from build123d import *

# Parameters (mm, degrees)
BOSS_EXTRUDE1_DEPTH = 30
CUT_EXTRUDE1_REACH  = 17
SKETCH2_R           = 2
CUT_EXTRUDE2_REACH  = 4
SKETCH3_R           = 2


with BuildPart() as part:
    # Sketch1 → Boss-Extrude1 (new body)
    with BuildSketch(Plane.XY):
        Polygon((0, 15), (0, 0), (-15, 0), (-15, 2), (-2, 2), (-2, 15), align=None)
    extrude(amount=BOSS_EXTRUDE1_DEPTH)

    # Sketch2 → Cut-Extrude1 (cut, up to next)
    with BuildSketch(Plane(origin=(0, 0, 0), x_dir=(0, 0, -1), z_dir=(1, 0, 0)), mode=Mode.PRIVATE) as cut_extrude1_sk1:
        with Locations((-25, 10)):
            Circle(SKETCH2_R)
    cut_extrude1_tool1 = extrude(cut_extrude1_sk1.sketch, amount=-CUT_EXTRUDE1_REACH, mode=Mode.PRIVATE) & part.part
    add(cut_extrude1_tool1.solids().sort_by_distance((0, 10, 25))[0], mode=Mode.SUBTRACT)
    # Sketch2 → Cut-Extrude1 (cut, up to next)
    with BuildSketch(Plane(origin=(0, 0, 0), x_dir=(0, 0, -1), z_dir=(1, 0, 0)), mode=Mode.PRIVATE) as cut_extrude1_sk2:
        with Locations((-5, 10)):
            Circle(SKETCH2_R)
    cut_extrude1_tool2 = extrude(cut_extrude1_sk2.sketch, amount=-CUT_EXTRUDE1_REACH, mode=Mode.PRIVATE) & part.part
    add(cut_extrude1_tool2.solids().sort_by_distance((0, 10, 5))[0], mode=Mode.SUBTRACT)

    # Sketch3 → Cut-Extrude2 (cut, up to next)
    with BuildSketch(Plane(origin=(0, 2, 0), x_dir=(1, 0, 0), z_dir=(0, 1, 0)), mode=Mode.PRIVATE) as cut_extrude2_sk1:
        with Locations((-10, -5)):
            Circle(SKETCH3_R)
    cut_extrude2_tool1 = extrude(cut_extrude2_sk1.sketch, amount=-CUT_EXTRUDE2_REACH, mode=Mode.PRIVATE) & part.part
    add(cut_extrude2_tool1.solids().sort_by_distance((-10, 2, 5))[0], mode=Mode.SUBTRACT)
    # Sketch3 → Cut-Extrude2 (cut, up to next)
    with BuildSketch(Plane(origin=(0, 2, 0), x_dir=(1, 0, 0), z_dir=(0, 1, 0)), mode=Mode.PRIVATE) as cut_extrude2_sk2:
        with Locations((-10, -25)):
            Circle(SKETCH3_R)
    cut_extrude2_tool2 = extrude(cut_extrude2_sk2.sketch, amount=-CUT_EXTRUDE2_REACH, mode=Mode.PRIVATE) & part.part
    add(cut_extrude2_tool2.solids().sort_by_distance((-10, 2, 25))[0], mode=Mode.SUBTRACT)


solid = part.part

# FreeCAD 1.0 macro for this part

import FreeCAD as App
import Part
import Sketcher
from FreeCAD import Vector

doc = App.newDocument("Part")
params = doc.addObject("Spreadsheet::Sheet", "Params")
for row, (alias, value) in enumerate([
    ("sketch1_width", "2 mm"),
    ("sketch1_width2", "13 mm"),
    ("pad1_length", "30 mm"),
    ("sketch2_diameter", "4 mm"),
    ("sketch3_diameter", "4 mm"),
    ("sketch4_diameter", "4 mm"),
    ("sketch5_diameter", "4 mm"),
], start=1):
    params.set(f"A{row}", alias)
    params.set(f"B{row}", "=" + value)
    params.setAlias(f"B{row}", alias)

body = doc.addObject("PartDesign::Body", "Body")

# Sketch on XY plane
sketch1 = doc.addObject("Sketcher::SketchObject", "Sketch")
body.addObject(sketch1)
sketch1.AttachmentSupport = (doc.XY_Plane, [""])
sketch1.MapMode = "FlatFace"
sketch1.addGeometry([
    Part.LineSegment(Vector(0, 0, 0), Vector(0, 15, 0)),  # 0
    Part.LineSegment(Vector(0, 15, 0), Vector(-2, 15, 0)),  # 1
    Part.LineSegment(Vector(-2, 15, 0), Vector(-2, 2, 0)),  # 2
    Part.LineSegment(Vector(-2, 2, 0), Vector(-15, 2, 0)),  # 3
    Part.LineSegment(Vector(-15, 2, 0), Vector(-15, 0, 0)),  # 4
    Part.LineSegment(Vector(-15, 0, 0), Vector(0, 0, 0)),  # 5
], False)
sketch1.addConstraint([
    Sketcher.Constraint("Coincident", 0, 2, 1, 1),
    Sketcher.Constraint("Coincident", 1, 2, 2, 1),
    Sketcher.Constraint("Coincident", 2, 2, 3, 1),
    Sketcher.Constraint("Coincident", 3, 2, 4, 1),
    Sketcher.Constraint("Coincident", 4, 2, 5, 1),
    Sketcher.Constraint("Coincident", 5, 2, 0, 1),
    Sketcher.Constraint("Vertical", 0),
    Sketcher.Constraint("Horizontal", 1),
    Sketcher.Constraint("Vertical", 2),
    Sketcher.Constraint("Horizontal", 3),
    Sketcher.Constraint("Vertical", 4),
    Sketcher.Constraint("Horizontal", 5),
    Sketcher.Constraint("Coincident", 5, 2, -1, 1),
    Sketcher.Constraint("Equal", 5, 0),
    Sketcher.Constraint("Equal", 3, 2),
    Sketcher.Constraint("DistanceX", 1, 2, 1, 1, 2.0),
    Sketcher.Constraint("DistanceX", 3, 2, 3, 1, 13.0),
])
sketch1.setExpression("Constraints[15]", "Params.sketch1_width")
sketch1.setExpression("Constraints[16]", "Params.sketch1_width2")
pad1 = doc.addObject("PartDesign::Pad", "Pad")
body.addObject(pad1)
pad1.Profile = sketch1
pad1.setExpression("Length", "Params.pad1_length")

# Sketch on YZ plane
sketch2 = doc.addObject("Sketcher::SketchObject", "Sketch001")
body.addObject(sketch2)
sketch2.AttachmentSupport = (doc.YZ_Plane, [""])
sketch2.MapMode = "FlatFace"
sketch2.addGeometry(Part.Circle(Vector(10, 25, 0), Vector(0, 0, 1), 2), False)
sketch2.addConstraint([
    Sketcher.Constraint("Diameter", 0, 4.0),
    Sketcher.Constraint("DistanceX", -1, 1, 0, 3, 10.0),
    Sketcher.Constraint("DistanceY", -1, 1, 0, 3, 25.0),
])
sketch2.setExpression("Constraints[0]", "Params.sketch2_diameter")
pocket1 = doc.addObject("PartDesign::Pocket", "Pocket")
body.addObject(pocket1)
pocket1.Profile = sketch2
pocket1.Type = "UpToFirst"

# Sketch on YZ plane
sketch3 = doc.addObject("Sketcher::SketchObject", "Sketch002")
body.addObject(sketch3)
sketch3.AttachmentSupport = (doc.YZ_Plane, [""])
sketch3.MapMode = "FlatFace"
sketch3.addGeometry(Part.Circle(Vector(10, 5, 0), Vector(0, 0, 1), 2), False)
sketch3.addConstraint([
    Sketcher.Constraint("Diameter", 0, 4.0),
    Sketcher.Constraint("DistanceX", -1, 1, 0, 3, 10.0),
    Sketcher.Constraint("DistanceY", -1, 1, 0, 3, 5.0),
])
sketch3.setExpression("Constraints[0]", "Params.sketch3_diameter")
pocket2 = doc.addObject("PartDesign::Pocket", "Pocket001")
body.addObject(pocket2)
pocket2.Profile = sketch3
pocket2.Type = "UpToFirst"

# Sketch on XZ plane
sketch4 = doc.addObject("Sketcher::SketchObject", "Sketch003")
body.addObject(sketch4)
sketch4.AttachmentSupport = (doc.XZ_Plane, [""])
sketch4.MapMode = "FlatFace"
sketch4.AttachmentOffset = App.Placement(Vector(0, 0, -2), App.Rotation())
sketch4.addGeometry(Part.Circle(Vector(-10, 5, 0), Vector(0, 0, 1), 2), False)
sketch4.addConstraint([
    Sketcher.Constraint("Diameter", 0, 4.0),
    Sketcher.Constraint("DistanceX", 0, 3, -1, 1, 10.0),
    Sketcher.Constraint("DistanceY", -1, 1, 0, 3, 5.0),
])
sketch4.setExpression("Constraints[0]", "Params.sketch4_diameter")
pocket3 = doc.addObject("PartDesign::Pocket", "Pocket002")
body.addObject(pocket3)
pocket3.Profile = sketch4
pocket3.Type = "UpToFirst"
pocket3.Reversed = True

# Sketch on XZ plane
sketch5 = doc.addObject("Sketcher::SketchObject", "Sketch004")
body.addObject(sketch5)
sketch5.AttachmentSupport = (doc.XZ_Plane, [""])
sketch5.MapMode = "FlatFace"
sketch5.AttachmentOffset = App.Placement(Vector(0, 0, -2), App.Rotation())
sketch5.addGeometry(Part.Circle(Vector(-10, 25, 0), Vector(0, 0, 1), 2), False)
sketch5.addConstraint([
    Sketcher.Constraint("Diameter", 0, 4.0),
    Sketcher.Constraint("DistanceX", 0, 3, -1, 1, 10.0),
    Sketcher.Constraint("DistanceY", -1, 1, 0, 3, 25.0),
])
sketch5.setExpression("Constraints[0]", "Params.sketch5_diameter")
pocket4 = doc.addObject("PartDesign::Pocket", "Pocket003")
body.addObject(pocket4)
pocket4.Profile = sketch5
pocket4.Type = "UpToFirst"
pocket4.Reversed = True

doc.recompute()
